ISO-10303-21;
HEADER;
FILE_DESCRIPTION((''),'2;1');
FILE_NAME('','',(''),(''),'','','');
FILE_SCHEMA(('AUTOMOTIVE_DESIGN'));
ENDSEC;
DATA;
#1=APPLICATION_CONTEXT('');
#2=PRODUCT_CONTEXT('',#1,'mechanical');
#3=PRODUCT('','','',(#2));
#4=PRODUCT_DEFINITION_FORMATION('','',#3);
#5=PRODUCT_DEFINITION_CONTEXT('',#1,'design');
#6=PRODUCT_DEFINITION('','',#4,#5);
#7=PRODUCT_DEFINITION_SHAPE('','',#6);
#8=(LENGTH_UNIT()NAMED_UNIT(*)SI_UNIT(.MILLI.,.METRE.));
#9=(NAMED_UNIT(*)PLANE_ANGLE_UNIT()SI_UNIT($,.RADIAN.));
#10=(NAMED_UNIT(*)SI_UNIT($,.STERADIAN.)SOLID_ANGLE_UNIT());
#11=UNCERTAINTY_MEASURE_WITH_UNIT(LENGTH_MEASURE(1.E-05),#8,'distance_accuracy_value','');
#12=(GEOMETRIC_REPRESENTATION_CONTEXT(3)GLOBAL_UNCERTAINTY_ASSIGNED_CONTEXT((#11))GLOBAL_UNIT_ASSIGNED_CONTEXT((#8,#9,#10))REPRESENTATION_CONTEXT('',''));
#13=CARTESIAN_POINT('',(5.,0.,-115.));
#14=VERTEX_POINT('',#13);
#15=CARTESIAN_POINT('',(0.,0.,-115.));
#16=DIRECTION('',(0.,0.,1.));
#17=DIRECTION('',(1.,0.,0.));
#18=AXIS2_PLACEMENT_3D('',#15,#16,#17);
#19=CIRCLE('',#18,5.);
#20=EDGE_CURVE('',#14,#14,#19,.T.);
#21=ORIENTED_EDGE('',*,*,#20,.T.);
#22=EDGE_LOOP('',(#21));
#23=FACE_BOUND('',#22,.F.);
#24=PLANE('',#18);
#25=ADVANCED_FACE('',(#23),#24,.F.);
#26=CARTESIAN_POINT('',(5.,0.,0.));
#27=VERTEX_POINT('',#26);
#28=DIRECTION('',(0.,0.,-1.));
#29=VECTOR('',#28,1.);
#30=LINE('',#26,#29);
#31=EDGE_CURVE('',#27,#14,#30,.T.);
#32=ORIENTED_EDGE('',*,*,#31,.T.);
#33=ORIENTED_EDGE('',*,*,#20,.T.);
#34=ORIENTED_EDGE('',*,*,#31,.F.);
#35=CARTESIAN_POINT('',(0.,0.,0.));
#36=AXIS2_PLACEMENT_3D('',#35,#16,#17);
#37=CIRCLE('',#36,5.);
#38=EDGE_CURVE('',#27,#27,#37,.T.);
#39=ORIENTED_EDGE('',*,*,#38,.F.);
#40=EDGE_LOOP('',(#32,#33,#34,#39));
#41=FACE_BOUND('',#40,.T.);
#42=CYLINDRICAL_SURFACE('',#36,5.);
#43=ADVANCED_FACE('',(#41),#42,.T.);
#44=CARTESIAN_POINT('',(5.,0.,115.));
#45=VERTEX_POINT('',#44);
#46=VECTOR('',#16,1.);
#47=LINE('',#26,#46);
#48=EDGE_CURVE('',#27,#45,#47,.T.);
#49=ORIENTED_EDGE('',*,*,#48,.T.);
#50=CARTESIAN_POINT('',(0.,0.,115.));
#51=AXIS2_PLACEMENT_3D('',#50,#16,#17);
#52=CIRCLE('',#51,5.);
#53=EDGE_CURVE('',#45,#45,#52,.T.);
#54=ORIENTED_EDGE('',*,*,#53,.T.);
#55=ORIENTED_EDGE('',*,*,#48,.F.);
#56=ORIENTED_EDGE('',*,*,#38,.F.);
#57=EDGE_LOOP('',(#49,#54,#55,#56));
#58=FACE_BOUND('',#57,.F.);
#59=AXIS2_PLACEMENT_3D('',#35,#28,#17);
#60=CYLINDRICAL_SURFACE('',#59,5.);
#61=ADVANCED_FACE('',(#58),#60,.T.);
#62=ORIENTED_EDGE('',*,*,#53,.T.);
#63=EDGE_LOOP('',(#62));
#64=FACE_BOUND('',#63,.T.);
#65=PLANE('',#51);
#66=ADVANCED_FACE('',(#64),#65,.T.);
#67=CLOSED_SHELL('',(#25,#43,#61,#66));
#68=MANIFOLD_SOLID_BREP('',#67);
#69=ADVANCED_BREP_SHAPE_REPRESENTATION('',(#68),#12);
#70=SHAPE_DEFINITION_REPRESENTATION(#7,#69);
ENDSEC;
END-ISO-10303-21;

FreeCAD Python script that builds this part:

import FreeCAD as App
import Part
import Sketcher

V = App.Vector
Q = App.Units.Quantity

doc = App.newDocument("Part")
params = doc.addObject("Spreadsheet::Sheet", "Params")
for row, (alias, value) in enumerate([
    ("sketch1_diameter", "10 mm"),
    ("pad1_length", "230 mm"),
], start=1):
    params.set(f"A{row}", alias)
    params.set(f"B{row}", "=" + value)
    params.setAlias(f"B{row}", alias)

body = doc.addObject("PartDesign::Body", "Body")

# Sketch on XY plane
sketch1 = body.newObject("Sketcher::SketchObject", "Sketch")
sketch1.AttachmentSupport = (doc.getObject("XY_Plane"), [""])
sketch1.MapMode = "FlatFace"
sketch1.addGeometry(Part.Circle(V(0, 0, 0), V(0, 0, 1), 5), False)
sketch1.addConstraint(Sketcher.Constraint("Coincident", 0, 3, -1, 1))
sketch1.addConstraint(Sketcher.Constraint("Diameter", 0, Q("10 mm")))
sketch1.setExpression("Constraints[1]", "Params.sketch1_diameter")
pad1 = body.newObject("PartDesign::Pad", "Pad")
pad1.Profile = sketch1
pad1.setExpression("Length", "Params.pad1_length")
pad1.Midplane = True

doc.recompute()
